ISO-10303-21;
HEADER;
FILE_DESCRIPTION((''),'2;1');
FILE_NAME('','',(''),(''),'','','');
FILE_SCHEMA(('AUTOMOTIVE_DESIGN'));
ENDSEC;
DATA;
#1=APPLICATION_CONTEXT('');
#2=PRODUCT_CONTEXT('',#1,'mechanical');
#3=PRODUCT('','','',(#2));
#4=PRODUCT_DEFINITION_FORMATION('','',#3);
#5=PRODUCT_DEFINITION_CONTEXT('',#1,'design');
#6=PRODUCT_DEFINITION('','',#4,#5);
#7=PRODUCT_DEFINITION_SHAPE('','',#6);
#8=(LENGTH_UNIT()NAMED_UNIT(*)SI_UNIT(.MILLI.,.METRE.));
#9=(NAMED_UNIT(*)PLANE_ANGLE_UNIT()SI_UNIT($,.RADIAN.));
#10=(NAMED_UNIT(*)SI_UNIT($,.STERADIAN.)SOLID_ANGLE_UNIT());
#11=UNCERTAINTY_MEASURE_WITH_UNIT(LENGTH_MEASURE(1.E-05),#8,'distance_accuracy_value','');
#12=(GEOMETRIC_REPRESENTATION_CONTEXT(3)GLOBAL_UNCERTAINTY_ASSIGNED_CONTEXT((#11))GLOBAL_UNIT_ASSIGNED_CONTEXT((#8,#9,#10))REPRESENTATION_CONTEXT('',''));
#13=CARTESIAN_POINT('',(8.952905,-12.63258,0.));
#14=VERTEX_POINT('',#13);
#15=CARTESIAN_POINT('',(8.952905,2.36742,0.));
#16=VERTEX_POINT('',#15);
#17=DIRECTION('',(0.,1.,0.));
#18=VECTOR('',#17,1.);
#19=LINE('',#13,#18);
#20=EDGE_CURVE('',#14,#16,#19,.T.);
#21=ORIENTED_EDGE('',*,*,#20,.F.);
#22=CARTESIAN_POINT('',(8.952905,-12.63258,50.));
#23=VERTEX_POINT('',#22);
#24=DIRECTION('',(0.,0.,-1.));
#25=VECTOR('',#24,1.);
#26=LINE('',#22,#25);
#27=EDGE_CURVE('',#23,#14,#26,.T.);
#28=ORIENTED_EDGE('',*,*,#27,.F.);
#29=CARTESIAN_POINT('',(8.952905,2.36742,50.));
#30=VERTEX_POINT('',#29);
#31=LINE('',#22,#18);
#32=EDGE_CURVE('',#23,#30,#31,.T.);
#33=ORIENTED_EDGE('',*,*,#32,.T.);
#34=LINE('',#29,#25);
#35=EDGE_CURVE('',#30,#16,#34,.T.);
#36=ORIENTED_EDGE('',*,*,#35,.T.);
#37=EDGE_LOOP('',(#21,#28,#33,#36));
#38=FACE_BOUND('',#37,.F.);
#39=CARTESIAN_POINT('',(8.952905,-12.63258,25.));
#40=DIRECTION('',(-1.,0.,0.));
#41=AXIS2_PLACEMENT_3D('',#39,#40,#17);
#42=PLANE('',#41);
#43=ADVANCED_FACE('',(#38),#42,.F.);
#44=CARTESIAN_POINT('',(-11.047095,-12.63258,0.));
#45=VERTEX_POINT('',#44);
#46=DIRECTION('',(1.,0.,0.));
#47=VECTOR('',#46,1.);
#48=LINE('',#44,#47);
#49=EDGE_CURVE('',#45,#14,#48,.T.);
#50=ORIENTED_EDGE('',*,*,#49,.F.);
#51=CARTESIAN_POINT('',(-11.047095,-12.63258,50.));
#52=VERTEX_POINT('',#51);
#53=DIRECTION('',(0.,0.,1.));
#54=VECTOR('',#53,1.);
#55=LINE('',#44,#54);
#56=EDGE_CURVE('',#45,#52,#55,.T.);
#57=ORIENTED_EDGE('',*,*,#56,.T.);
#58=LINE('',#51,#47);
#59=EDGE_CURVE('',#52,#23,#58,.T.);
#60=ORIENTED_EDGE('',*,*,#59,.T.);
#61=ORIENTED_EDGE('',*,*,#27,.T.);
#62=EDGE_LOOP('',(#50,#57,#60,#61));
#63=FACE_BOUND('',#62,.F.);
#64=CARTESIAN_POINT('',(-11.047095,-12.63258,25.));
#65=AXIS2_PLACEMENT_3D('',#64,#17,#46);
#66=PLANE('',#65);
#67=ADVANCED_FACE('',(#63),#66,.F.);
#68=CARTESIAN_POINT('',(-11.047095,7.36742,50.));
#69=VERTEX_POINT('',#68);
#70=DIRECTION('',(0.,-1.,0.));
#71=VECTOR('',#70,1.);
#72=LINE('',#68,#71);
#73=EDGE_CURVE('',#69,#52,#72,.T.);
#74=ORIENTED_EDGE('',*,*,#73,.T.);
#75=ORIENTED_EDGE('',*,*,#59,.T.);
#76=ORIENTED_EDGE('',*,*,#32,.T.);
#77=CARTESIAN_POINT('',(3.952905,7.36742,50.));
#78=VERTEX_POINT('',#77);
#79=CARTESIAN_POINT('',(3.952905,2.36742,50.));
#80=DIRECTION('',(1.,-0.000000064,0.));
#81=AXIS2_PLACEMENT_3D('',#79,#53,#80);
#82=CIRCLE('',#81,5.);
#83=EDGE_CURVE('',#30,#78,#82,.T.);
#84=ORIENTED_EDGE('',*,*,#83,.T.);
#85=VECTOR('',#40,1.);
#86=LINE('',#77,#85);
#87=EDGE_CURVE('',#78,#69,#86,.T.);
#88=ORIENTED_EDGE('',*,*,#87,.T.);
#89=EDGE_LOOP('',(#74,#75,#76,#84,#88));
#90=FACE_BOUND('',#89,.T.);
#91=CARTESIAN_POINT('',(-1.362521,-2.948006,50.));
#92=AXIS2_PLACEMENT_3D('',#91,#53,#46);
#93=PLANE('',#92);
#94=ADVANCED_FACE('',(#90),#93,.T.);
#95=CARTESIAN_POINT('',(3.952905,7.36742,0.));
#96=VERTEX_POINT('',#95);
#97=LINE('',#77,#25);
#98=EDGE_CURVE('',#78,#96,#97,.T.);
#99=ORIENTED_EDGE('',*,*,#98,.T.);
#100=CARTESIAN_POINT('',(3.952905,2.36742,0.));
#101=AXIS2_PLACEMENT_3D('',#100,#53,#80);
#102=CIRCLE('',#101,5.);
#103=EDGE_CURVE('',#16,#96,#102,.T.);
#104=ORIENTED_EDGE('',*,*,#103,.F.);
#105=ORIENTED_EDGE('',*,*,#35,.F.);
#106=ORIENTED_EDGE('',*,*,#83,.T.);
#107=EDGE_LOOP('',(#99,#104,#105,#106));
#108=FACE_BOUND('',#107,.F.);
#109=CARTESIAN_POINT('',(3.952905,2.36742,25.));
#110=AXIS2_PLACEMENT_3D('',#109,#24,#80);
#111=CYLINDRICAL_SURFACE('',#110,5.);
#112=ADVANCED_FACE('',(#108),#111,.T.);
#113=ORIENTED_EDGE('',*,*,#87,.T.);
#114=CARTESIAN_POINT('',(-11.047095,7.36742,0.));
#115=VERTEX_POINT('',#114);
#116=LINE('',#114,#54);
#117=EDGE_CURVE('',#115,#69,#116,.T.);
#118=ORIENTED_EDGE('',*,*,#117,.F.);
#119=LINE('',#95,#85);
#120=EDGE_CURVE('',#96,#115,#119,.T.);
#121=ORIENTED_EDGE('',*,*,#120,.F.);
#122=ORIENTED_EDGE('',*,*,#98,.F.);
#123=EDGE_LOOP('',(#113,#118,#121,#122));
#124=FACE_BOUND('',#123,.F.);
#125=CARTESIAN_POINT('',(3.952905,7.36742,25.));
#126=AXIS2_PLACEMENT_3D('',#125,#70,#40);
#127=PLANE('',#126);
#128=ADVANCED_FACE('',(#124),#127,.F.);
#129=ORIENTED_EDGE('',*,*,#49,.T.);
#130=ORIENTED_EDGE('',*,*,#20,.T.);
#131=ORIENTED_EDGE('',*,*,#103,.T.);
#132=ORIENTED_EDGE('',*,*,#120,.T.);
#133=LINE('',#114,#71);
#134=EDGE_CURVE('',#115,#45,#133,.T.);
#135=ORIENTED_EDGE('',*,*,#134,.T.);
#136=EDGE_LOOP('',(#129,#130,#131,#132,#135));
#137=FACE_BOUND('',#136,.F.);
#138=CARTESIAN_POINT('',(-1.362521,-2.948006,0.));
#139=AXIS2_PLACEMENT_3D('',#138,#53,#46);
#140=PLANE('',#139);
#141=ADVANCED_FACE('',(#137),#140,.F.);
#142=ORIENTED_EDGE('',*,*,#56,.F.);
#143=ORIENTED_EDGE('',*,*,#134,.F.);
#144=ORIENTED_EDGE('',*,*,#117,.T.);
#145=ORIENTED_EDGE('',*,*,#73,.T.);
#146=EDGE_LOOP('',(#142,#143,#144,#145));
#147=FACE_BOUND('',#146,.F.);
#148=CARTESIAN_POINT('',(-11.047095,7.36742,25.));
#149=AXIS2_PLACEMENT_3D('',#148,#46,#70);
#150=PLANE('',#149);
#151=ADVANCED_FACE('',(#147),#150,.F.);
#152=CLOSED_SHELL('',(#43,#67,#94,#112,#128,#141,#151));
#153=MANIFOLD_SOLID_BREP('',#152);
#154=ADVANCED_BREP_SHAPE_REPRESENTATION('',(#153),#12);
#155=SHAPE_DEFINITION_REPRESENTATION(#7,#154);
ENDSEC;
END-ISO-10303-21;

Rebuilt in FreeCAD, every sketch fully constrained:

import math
import FreeCAD as App
import Part
import Sketcher

V = App.Vector

doc = App.newDocument("Part")
body = doc.addObject("PartDesign::Body", "Body")

# Sketch on XY plane
sketch1 = doc.addObject("Sketcher::SketchObject", "Sketch")
body.addObject(sketch1)
sketch1.AttachmentSupport = (doc.XY_Plane, [""])
sketch1.MapMode = "FlatFace"
sketch1.addGeometry([
    Part.LineSegment(V(3.952905, 7.36742, 0), V(-11.047095, 7.36742, 0)),  # 0
    Part.LineSegment(V(-11.047095, 7.36742, 0), V(-11.047095, -12.63258, 0)),  # 1
    Part.LineSegment(V(-11.047095, -12.63258, 0), V(8.952905, -12.63258, 0)),  # 2
    Part.LineSegment(V(8.952905, -12.63258, 0), V(8.952905, 2.36742, 0)),  # 3
    Part.ArcOfCircle(Part.Circle(V(3.952905, 2.36742, 0), V(0, 0, 1), 5), math.radians(-0.000004), math.radians(90.000004)),  # 4
], False)
sketch1.addConstraint([
    Sketcher.Constraint("Coincident", 0, 2, 1, 1),
    Sketcher.Constraint("Coincident", 1, 2, 2, 1),
    Sketcher.Constraint("Coincident", 2, 2, 3, 1),
    Sketcher.Constraint("Tangent", 3, 2, 4, 1),
    Sketcher.Constraint("Tangent", 4, 2, 0, 1),
    Sketcher.Constraint("Horizontal", 0),
    Sketcher.Constraint("Vertical", 1),
    Sketcher.Constraint("Horizontal", 2),
    Sketcher.Constraint("Vertical", 3),
    Sketcher.Constraint("Equal", 2, 1),
    Sketcher.Constraint("Radius", 4, 5.0),
    Sketcher.Constraint("DistanceX", 0, 2, 0, 1, 15.0),
    Sketcher.Constraint("DistanceY", -1, 1, 4, 3, 2.36742),
    Sketcher.Constraint("DistanceX", -1, 1, 4, 3, 3.952905),
])
pad1 = doc.addObject("PartDesign::Pad", "Pad")
body.addObject(pad1)
pad1.Profile = sketch1
pad1.Length = 25

# Sketch on XY plane
sketch2 = doc.addObject("Sketcher::SketchObject", "Sketch001")
body.addObject(sketch2)
sketch2.AttachmentSupport = (doc.XY_Plane, [""])
sketch2.MapMode = "FlatFace"
sketch2.AttachmentOffset = App.Placement(V(0, 0, 25), App.Rotation())
sketch2.addGeometry([
    Part.LineSegment(V(3.952905, 7.36742, 0), V(-11.047095, 7.36742, 0)),  # 0
    Part.LineSegment(V(-11.047095, 7.36742, 0), V(-11.047095, -12.63258, 0)),  # 1
    Part.LineSegment(V(-11.047095, -12.63258, 0), V(8.952905, -12.63258, 0)),  # 2
    Part.LineSegment(V(8.952905, -12.63258, 0), V(8.952905, 2.36742, 0)),  # 3
    Part.ArcOfCircle(Part.Circle(V(3.952905, 2.36742, 0), V(0, 0, 1), 5), math.radians(-0.000004), math.radians(90.000004)),  # 4
], False)
sketch2.addConstraint([
    Sketcher.Constraint("Coincident", 0, 2, 1, 1),
    Sketcher.Constraint("Coincident", 1, 2, 2, 1),
    Sketcher.Constraint("Coincident", 2, 2, 3, 1),
    Sketcher.Constraint("Tangent", 3, 2, 4, 1),
    Sketcher.Constraint("Tangent", 4, 2, 0, 1),
    Sketcher.Constraint("Horizontal", 0),
    Sketcher.Constraint("Vertical", 1),
    Sketcher.Constraint("Horizontal", 2),
    Sketcher.Constraint("Vertical", 3),
    Sketcher.Constraint("Equal", 2, 1),
    Sketcher.Constraint("Radius", 4, 5.0),
    Sketcher.Constraint("DistanceX", 0, 2, 0, 1, 15.0),
    Sketcher.Constraint("DistanceY", -1, 1, 4, 3, 2.36742),
    Sketcher.Constraint("DistanceX", -1, 1, 4, 3, 3.952905),
])
pad2 = doc.addObject("PartDesign::Pad", "Pad001")
body.addObject(pad2)
pad2.Profile = sketch2
pad2.Length = 25

doc.recompute()
